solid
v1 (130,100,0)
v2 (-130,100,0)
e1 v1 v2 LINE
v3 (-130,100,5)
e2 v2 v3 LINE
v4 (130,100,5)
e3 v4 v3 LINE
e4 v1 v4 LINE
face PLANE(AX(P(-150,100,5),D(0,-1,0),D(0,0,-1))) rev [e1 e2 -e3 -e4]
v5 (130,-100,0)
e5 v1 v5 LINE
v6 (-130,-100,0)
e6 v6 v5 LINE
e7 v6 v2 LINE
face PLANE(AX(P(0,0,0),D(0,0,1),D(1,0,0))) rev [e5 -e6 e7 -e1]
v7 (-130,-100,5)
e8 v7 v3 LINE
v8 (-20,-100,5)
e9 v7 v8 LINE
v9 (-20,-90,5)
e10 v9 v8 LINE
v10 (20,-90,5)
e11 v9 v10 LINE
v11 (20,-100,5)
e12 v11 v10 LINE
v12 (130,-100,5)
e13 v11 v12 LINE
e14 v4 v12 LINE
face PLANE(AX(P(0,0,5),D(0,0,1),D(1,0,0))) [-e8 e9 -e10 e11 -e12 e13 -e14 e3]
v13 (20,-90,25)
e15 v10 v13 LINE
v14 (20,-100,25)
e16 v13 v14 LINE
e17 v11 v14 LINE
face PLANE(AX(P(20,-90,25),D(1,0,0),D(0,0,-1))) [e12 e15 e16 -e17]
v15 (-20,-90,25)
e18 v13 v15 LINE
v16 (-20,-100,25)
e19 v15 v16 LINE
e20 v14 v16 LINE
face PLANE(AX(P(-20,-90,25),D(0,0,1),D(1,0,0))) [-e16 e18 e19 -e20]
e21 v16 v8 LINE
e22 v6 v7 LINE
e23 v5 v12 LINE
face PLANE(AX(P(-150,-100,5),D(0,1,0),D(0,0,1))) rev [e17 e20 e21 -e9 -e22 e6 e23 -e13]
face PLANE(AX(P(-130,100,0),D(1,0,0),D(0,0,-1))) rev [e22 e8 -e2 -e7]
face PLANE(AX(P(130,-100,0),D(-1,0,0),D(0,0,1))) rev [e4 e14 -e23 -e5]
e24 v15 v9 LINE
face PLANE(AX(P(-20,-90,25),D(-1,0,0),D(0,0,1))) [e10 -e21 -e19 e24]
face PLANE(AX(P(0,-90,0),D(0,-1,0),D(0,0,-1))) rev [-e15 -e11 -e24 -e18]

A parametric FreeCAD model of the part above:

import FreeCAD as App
import Part
import Sketcher

V = App.Vector

doc = App.newDocument("Part")
body = doc.addObject("PartDesign::Body", "Body")

# Sketch on XY plane
sketch1 = body.newObject("Sketcher::SketchObject", "Sketch")
sketch1.AttachmentSupport = (doc.getObject("XY_Plane"), [""])
sketch1.MapMode = "FlatFace"
sketch1.addGeometry(Part.LineSegment(V(-150, 100, 0), V(-150, -100, 0)), False)
sketch1.addGeometry(Part.LineSegment(V(-150, -100, 0), V(150, -100, 0)), False)
sketch1.addGeometry(Part.LineSegment(V(150, -100, 0), V(150, 100, 0)), False)
sketch1.addGeometry(Part.LineSegment(V(150, 100, 0), V(-150, 100, 0)), False)
sketch1.addConstraint(Sketcher.Constraint("Coincident", 0, 2, 1, 1))
sketch1.addConstraint(Sketcher.Constraint("Coincident", 1, 2, 2, 1))
sketch1.addConstraint(Sketcher.Constraint("Coincident", 2, 2, 3, 1))
sketch1.addConstraint(Sketcher.Constraint("Coincident", 3, 2, 0, 1))
sketch1.addConstraint(Sketcher.Constraint("Vertical", 0))
sketch1.addConstraint(Sketcher.Constraint("Horizontal", 1))
sketch1.addConstraint(Sketcher.Constraint("Vertical", 2))
sketch1.addConstraint(Sketcher.Constraint("Horizontal", 3))
sketch1.addConstraint(Sketcher.Constraint("Symmetric", 0, 2, 2, 2, -1, 1))
sketch1.addConstraint(Sketcher.Constraint("DistanceX", 1, 1, 1, 2, 300.0))
sketch1.addConstraint(Sketcher.Constraint("DistanceY", 0, 2, 0, 1, 200.0))
pad1 = body.newObject("PartDesign::Pad", "Pad")
pad1.Profile = sketch1
pad1.Length = 5

# Sketch on XY plane
sketch2 = body.newObject("Sketcher::SketchObject", "Sketch001")
sketch2.AttachmentSupport = (doc.getObject("XY_Plane"), [""])
sketch2.MapMode = "FlatFace"
sketch2.AttachmentOffset = App.Placement(V(0, 0, 5), App.Rotation())
sketch2.addGeometry(Part.LineSegment(V(-150, -80, 0), V(-150, -100, 0)), False)
sketch2.addGeometry(Part.LineSegment(V(-150, -100, 0), V(-130, -100, 0)), False)
sketch2.addGeometry(Part.LineSegment(V(-130, -100, 0), V(-130, -80, 0)), False)
sketch2.addGeometry(Part.LineSegment(V(-130, -80, 0), V(-150, -80, 0)), False)
sketch2.addGeometry(Part.LineSegment(V(-150, 100, 0), V(-150, 60, 0)), False)
sketch2.addGeometry(Part.LineSegment(V(-150, 60, 0), V(-130, 60, 0)), False)
sketch2.addGeometry(Part.LineSegment(V(-130, 60, 0), V(-130, 100, 0)), False)
sketch2.addGeometry(Part.LineSegment(V(-130, 100, 0), V(-150, 100, 0)), False)
sketch2.addGeometry(Part.LineSegment(V(130, 100, 0), V(130, 60, 0)), False)
sketch2.addGeometry(Part.LineSegment(V(130, 60, 0), V(150, 60, 0)), False)
sketch2.addGeometry(Part.LineSegment(V(150, 60, 0), V(150, 100, 0)), False)
sketch2.addGeometry(Part.LineSegment(V(150, 100, 0), V(130, 100, 0)), False)
sketch2.addGeometry(Part.LineSegment(V(130, -80, 0), V(130, -100, 0)), False)
sketch2.addGeometry(Part.LineSegment(V(130, -100, 0), V(150, -100, 0)), False)
sketch2.addGeometry(Part.LineSegment(V(150, -100, 0), V(150, -80, 0)), False)
sketch2.addGeometry(Part.LineSegment(V(150, -80, 0), V(130, -80, 0)), False)
sketch2.addConstraint(Sketcher.Constraint("Coincident", 0, 2, 1, 1))
sketch2.addConstraint(Sketcher.Constraint("Coincident", 1, 2, 2, 1))
sketch2.addConstraint(Sketcher.Constraint("Coincident", 2, 2, 3, 1))
sketch2.addConstraint(Sketcher.Constraint("Coincident", 3, 2, 0, 1))
sketch2.addConstraint(Sketcher.Constraint("Coincident", 4, 2, 5, 1))
sketch2.addConstraint(Sketcher.Constraint("Coincident", 5, 2, 6, 1))
sketch2.addConstraint(Sketcher.Constraint("Coincident", 6, 2, 7, 1))
sketch2.addConstraint(Sketcher.Constraint("Coincident", 7, 2, 4, 1))
sketch2.addConstraint(Sketcher.Constraint("Coincident", 8, 2, 9, 1))
sketch2.addConstraint(Sketcher.Constraint("Coincident", 9, 2, 10, 1))
sketch2.addConstraint(Sketcher.Constraint("Coincident", 10, 2, 11, 1))
sketch2.addConstraint(Sketcher.Constraint("Coincident", 11, 2, 8, 1))
sketch2.addConstraint(Sketcher.Constraint("Coincident", 12, 2, 13, 1))
sketch2.addConstraint(Sketcher.Constraint("Coincident", 13, 2, 14, 1))
sketch2.addConstraint(Sketcher.Constraint("Coincident", 14, 2, 15, 1))
sketch2.addConstraint(Sketcher.Constraint("Coincident", 15, 2, 12, 1))
sketch2.addConstraint(Sketcher.Constraint("Vertical", 0))
sketch2.addConstraint(Sketcher.Constraint("Horizontal", 1))
sketch2.addConstraint(Sketcher.Constraint("Vertical", 2))
sketch2.addConstraint(Sketcher.Constraint("Horizontal", 3))
sketch2.addConstraint(Sketcher.Constraint("Vertical", 4))
sketch2.addConstraint(Sketcher.Constraint("Horizontal", 5))
sketch2.addConstraint(Sketcher.Constraint("Vertical", 6))
sketch2.addConstraint(Sketcher.Constraint("Horizontal", 7))
sketch2.addConstraint(Sketcher.Constraint("Vertical", 8))
sketch2.addConstraint(Sketcher.Constraint("Horizontal", 9))
sketch2.addConstraint(Sketcher.Constraint("Vertical", 10))
sketch2.addConstraint(Sketcher.Constraint("Horizontal", 11))
sketch2.addConstraint(Sketcher.Constraint("Vertical", 12))
sketch2.addConstraint(Sketcher.Constraint("Horizontal", 13))
sketch2.addConstraint(Sketcher.Constraint("Vertical", 14))
sketch2.addConstraint(Sketcher.Constraint("Horizontal", 15))
sketch2.addConstraint(Sketcher.Constraint("Symmetric", 0, 2, 10, 2, -1, 1))
sketch2.addConstraint(Sketcher.Constraint("Symmetric", 6, 2, 12, 2, -1, 1))
sketch2.addConstraint(Sketcher.Constraint("Symmetric", 5, 2, 8, 2, -2))
sketch2.addConstraint(Sketcher.Constraint("Symmetric", 7, 2, 10, 2, -2))
sketch2.addConstraint(Sketcher.Constraint("Symmetric", 3, 2, 14, 2, -2))
sketch2.addConstraint(Sketcher.Constraint("Vertical", 2, 2, 5, 2))
sketch2.addConstraint(Sketcher.Constraint("Equal", 15, 0))
sketch2.addConstraint(Sketcher.Constraint("DistanceX", 1, 1, 1, 2, 20.0))
sketch2.addConstraint(Sketcher.Constraint("DistanceY", 4, 2, 4, 1, 40.0))
sketch2.addConstraint(Sketcher.Constraint("DistanceX", 0, 2, -1, 1, 150.0))
sketch2.addConstraint(Sketcher.Constraint("DistanceY", 0, 2, -1, 1, 100.0))
pocket1 = body.newObject("PartDesign::Pocket", "Pocket")
pocket1.Profile = sketch2
pocket1.Length = 5

# Sketch on XY plane
sketch3 = body.newObject("Sketcher::SketchObject", "Sketch002")
sketch3.AttachmentSupport = (doc.getObject("XY_Plane"), [""])
sketch3.MapMode = "FlatFace"
sketch3.AttachmentOffset = App.Placement(V(0, 0, 5), App.Rotation())
sketch3.addGeometry(Part.LineSegment(V(-150, 60, 0), V(-150, -80, 0)), False)
sketch3.addGeometry(Part.LineSegment(V(-150, -80, 0), V(-130, -80, 0)), False)
sketch3.addGeometry(Part.LineSegment(V(-130, -80, 0), V(-130, 60, 0)), False)
sketch3.addGeometry(Part.LineSegment(V(-130, 60, 0), V(-150, 60, 0)), False)
sketch3.addGeometry(Part.LineSegment(V(130, 60, 0), V(130, -80, 0)), False)
sketch3.addGeometry(Part.LineSegment(V(130, -80, 0), V(150, -80, 0)), False)
sketch3.addGeometry(Part.LineSegment(V(150, -80, 0), V(150, 60, 0)), False)
sketch3.addGeometry(Part.LineSegment(V(150, 60, 0), V(130, 60, 0)), False)
sketch3.addConstraint(Sketcher.Constraint("Coincident", 0, 2, 1, 1))
sketch3.addConstraint(Sketcher.Constraint("Coincident", 1, 2, 2, 1))
sketch3.addConstraint(Sketcher.Constraint("Coincident", 2, 2, 3, 1))
sketch3.addConstraint(Sketcher.Constraint("Coincident", 3, 2, 0, 1))
sketch3.addConstraint(Sketcher.Constraint("Coincident", 4, 2, 5, 1))
sketch3.addConstraint(Sketcher.Constraint("Coincident", 5, 2, 6, 1))
sketch3.addConstraint(Sketcher.Constraint("Coincident", 6, 2, 7, 1))
sketch3.addConstraint(Sketcher.Constraint("Coincident", 7, 2, 4, 1))
sketch3.addConstraint(Sketcher.Constraint("Vertical", 0))
sketch3.addConstraint(Sketcher.Constraint("Horizontal", 1))
sketch3.addConstraint(Sketcher.Constraint("Vertical", 2))
sketch3.addConstraint(Sketcher.Constraint("Horizontal", 3))
sketch3.addConstraint(Sketcher.Constraint("Vertical", 4))
sketch3.addConstraint(Sketcher.Constraint("Horizontal", 5))
sketch3.addConstraint(Sketcher.Constraint("Vertical", 6))
sketch3.addConstraint(Sketcher.Constraint("Horizontal", 7))
sketch3.addConstraint(Sketcher.Constraint("Symmetric", 1, 2, 4, 2, -2))
sketch3.addConstraint(Sketcher.Constraint("Symmetric", 3, 2, 6, 2, -2))
sketch3.addConstraint(Sketcher.Constraint("DistanceX", 1, 1, 1, 2, 20.0))
sketch3.addConstraint(Sketcher.Constraint("DistanceY", 0, 2, 0, 1, 140.0))
sketch3.addConstraint(Sketcher.Constraint("DistanceX", 0, 2, -1, 1, 150.0))
sketch3.addConstraint(Sketcher.Constraint("DistanceY", 0, 2, -1, 1, 80.0))
pocket2 = body.newObject("PartDesign::Pocket", "Pocket001")
pocket2.Profile = sketch3
pocket2.Length = 10

# Sketch on XZ plane
sketch4 = body.newObject("Sketcher::SketchObject", "Sketch003")
sketch4.AttachmentSupport = (doc.getObject("XZ_Plane"), [""])
sketch4.MapMode = "FlatFace"
sketch4.AttachmentOffset = App.Placement(V(0, 0, 100), App.Rotation())
sketch4.addGeometry(Part.LineSegment(V(-20, 25, 0), V(-20, 0, 0)), False)
sketch4.addGeometry(Part.LineSegment(V(-20, 0, 0), V(20, 0, 0)), False)
sketch4.addGeometry(Part.LineSegment(V(20, 0, 0), V(20, 25, 0)), False)
sketch4.addGeometry(Part.LineSegment(V(20, 25, 0), V(-20, 25, 0)), False)
sketch4.addConstraint(Sketcher.Constraint("Coincident", 0, 2, 1, 1))
sketch4.addConstraint(Sketcher.Constraint("Coincident", 1, 2, 2, 1))
sketch4.addConstraint(Sketcher.Constraint("Coincident", 2, 2, 3, 1))
sketch4.addConstraint(Sketcher.Constraint("Coincident", 3, 2, 0, 1))
sketch4.addConstraint(Sketcher.Constraint("Vertical", 0))
sketch4.addConstraint(Sketcher.Constraint("Horizontal", 1))
sketch4.addConstraint(Sketcher.Constraint("Vertical", 2))
sketch4.addConstraint(Sketcher.Constraint("Horizontal", 3))
sketch4.addConstraint(Sketcher.Constraint("Symmetric", 0, 2, 1, 2, -1, 1))
sketch4.addConstraint(Sketcher.Constraint("DistanceX", 1, 1, 1, 2, 40.0))
sketch4.addConstraint(Sketcher.Constraint("DistanceY", 0, 2, 0, 1, 25.0))
pad2 = body.newObject("PartDesign::Pad", "Pad001")
pad2.Profile = sketch4
pad2.Length = 10
pad2.Reversed = True

doc.recompute()
